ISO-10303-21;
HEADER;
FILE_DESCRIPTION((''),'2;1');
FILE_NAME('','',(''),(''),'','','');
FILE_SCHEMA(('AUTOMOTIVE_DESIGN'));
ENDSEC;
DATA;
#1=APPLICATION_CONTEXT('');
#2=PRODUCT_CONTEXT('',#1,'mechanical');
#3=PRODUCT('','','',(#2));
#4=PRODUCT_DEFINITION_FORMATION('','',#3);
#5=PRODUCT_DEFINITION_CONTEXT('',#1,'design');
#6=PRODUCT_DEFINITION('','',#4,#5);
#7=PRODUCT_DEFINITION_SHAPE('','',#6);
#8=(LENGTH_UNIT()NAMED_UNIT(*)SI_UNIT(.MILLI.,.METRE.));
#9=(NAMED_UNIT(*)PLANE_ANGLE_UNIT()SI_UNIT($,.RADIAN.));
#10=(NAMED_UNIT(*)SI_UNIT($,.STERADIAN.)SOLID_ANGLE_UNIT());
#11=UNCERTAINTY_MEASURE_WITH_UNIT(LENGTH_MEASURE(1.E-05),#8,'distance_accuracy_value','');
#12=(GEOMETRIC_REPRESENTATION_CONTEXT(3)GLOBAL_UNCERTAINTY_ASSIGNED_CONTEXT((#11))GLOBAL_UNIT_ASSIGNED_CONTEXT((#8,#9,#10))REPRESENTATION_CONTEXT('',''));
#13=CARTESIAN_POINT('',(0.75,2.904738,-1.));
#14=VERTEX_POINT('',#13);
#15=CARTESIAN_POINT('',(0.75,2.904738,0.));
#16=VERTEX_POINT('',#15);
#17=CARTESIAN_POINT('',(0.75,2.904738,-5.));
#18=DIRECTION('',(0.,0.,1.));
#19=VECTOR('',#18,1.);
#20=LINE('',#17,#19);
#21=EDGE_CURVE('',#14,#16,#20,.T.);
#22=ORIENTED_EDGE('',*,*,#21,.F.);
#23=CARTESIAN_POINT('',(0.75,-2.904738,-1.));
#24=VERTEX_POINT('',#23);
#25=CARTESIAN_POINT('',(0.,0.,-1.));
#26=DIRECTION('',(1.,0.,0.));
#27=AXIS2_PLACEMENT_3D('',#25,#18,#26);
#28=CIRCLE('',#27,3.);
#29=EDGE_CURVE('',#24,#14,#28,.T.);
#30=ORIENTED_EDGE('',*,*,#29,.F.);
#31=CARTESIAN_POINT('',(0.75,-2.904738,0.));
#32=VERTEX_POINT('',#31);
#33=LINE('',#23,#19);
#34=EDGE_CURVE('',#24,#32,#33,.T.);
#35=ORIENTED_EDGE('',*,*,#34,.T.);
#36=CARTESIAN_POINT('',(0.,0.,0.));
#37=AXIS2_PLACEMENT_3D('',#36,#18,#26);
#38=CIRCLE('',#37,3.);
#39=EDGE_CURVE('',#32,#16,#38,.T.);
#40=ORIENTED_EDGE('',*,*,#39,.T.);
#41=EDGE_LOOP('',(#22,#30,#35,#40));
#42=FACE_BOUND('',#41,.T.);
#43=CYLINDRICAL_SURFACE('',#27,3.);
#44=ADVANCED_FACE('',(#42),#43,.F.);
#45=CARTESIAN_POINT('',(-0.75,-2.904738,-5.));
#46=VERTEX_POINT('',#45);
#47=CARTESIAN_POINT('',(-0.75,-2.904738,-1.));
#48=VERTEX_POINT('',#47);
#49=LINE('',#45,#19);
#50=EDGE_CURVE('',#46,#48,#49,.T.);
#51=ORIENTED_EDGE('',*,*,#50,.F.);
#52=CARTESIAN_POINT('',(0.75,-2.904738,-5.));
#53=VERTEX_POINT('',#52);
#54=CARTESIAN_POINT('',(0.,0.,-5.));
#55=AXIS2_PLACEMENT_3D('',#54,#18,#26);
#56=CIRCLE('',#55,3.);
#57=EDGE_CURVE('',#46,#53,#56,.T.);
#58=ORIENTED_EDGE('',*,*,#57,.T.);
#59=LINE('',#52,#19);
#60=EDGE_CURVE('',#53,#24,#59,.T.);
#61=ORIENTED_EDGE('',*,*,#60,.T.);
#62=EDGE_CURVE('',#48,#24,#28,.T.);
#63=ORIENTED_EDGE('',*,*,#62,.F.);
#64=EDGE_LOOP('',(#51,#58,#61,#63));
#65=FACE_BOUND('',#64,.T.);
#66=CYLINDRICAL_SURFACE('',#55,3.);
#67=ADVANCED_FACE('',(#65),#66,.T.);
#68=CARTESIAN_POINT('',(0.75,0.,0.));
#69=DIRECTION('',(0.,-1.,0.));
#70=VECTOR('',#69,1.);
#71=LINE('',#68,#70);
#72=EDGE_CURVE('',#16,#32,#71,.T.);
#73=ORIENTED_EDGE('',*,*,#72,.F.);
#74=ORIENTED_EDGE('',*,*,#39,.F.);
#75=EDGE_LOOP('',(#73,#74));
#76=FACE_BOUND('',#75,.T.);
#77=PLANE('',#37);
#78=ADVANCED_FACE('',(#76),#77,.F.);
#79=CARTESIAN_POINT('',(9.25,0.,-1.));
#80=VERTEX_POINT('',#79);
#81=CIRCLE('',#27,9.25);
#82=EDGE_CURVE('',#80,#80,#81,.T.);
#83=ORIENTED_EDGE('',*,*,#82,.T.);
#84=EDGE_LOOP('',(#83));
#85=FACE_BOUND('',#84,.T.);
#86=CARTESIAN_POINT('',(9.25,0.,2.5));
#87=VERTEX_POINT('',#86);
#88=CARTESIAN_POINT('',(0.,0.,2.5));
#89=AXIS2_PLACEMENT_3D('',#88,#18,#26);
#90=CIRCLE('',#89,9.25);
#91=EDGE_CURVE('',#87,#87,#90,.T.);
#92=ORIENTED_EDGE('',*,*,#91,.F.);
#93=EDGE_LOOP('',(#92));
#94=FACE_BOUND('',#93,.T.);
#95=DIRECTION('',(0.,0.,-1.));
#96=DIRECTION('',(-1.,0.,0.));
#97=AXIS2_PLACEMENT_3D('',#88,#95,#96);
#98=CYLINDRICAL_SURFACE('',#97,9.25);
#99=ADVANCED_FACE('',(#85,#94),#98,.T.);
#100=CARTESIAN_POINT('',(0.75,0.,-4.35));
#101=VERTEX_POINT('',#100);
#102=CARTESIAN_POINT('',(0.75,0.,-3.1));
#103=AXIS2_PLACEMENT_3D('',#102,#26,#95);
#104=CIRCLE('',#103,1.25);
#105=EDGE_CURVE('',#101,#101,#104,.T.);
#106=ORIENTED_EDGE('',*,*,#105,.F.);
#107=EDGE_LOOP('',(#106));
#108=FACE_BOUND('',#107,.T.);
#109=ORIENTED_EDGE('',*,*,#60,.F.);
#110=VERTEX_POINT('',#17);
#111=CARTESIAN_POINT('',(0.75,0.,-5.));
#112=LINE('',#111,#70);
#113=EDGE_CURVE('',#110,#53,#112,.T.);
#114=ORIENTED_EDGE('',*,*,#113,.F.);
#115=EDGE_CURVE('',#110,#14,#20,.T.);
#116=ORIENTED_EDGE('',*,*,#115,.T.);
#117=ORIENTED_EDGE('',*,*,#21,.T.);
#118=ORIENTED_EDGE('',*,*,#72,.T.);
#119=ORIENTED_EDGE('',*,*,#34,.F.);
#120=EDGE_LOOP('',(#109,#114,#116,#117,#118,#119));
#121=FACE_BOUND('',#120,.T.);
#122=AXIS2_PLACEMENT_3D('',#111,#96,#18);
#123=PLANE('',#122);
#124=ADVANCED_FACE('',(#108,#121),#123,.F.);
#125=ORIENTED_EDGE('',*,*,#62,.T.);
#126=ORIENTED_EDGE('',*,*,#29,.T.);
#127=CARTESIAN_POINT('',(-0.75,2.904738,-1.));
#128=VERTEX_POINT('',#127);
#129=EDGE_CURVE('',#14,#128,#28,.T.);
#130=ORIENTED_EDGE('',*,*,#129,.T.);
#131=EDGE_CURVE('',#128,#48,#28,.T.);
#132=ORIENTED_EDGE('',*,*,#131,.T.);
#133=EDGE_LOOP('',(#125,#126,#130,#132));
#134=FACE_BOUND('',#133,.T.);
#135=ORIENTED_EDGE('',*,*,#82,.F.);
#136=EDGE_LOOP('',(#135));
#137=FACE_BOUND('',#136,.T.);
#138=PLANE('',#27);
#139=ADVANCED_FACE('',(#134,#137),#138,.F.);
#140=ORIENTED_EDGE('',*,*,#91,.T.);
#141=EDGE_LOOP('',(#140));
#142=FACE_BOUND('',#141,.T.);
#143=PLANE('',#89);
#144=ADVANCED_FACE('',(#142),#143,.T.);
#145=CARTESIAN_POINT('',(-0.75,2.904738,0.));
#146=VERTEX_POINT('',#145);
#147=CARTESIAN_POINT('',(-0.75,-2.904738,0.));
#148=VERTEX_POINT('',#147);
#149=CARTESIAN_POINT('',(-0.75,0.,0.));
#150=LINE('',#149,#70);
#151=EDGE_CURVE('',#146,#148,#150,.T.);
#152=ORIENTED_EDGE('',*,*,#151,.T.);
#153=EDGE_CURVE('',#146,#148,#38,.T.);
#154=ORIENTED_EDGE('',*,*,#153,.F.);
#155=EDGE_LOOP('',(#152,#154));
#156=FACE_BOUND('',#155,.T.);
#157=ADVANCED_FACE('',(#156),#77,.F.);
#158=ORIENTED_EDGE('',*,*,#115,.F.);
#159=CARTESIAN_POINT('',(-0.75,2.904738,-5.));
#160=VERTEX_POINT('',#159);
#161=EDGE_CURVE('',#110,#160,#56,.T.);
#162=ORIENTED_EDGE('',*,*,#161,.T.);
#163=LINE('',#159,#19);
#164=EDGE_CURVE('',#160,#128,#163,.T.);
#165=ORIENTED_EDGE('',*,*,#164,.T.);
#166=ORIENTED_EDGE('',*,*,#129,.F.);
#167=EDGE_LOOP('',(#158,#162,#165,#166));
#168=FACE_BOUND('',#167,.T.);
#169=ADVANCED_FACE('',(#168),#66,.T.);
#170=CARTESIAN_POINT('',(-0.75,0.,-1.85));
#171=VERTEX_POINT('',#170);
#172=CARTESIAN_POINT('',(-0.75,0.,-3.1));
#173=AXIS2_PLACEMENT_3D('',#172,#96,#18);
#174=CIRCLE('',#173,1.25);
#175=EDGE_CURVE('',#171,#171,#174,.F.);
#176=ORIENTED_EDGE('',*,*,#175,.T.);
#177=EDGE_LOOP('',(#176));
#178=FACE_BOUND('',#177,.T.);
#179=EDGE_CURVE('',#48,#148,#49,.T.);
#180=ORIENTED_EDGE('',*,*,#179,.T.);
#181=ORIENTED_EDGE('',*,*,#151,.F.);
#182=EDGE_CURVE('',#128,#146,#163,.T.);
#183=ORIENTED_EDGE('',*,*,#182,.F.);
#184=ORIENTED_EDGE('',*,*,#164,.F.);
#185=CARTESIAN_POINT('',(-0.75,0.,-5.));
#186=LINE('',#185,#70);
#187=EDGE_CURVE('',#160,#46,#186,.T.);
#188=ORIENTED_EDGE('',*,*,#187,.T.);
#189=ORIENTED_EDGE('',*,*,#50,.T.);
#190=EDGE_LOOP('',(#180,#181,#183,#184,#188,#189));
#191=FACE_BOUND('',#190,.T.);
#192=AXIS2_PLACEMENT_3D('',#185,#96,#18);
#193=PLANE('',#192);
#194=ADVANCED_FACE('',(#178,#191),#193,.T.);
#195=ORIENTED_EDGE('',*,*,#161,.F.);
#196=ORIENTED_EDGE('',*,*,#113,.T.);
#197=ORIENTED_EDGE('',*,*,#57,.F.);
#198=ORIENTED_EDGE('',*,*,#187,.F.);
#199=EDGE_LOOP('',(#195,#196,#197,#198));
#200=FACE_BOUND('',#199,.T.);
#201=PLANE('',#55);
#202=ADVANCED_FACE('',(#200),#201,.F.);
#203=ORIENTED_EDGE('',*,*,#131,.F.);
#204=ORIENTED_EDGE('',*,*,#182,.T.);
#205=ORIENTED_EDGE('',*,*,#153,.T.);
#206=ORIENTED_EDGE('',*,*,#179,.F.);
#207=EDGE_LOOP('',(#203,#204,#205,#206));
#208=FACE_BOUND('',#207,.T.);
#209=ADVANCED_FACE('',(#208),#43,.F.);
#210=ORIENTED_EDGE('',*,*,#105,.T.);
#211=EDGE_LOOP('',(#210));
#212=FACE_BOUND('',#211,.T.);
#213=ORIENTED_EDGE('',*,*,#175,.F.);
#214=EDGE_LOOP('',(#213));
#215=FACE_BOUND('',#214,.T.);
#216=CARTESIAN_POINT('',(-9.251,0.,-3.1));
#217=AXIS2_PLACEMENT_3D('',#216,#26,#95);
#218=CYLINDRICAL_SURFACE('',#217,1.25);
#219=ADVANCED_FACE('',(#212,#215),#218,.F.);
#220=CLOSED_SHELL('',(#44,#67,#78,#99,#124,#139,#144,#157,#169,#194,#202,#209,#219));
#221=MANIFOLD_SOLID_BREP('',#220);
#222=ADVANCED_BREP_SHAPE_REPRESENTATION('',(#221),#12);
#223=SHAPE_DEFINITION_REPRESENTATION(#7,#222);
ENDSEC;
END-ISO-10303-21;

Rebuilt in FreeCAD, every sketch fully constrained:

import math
import FreeCAD as App
import Part
import Sketcher
from FreeCAD import Vector
Q = App.Units.Quantity

doc = App.newDocument("Part")
body = doc.addObject("PartDesign::Body", "Body")

sketch1 = body.newObject("Sketcher::SketchObject", "Sketch")
sketch1.AttachmentSupport = (doc.getObject("XY_Plane"), [""])
sketch1.MapMode = "FlatFace"
sketch1.addGeometry(Part.Circle(Vector(0, 0, 0), Vector(0, 0, 1), 9), False)
sketch1.addConstraint([
    Sketcher.Constraint("Coincident", 0, 3, -1, 1),
    Sketcher.Constraint("Diameter", 0, Q("18.5 mm")),
])
pad1 = body.newObject("PartDesign::Pad", "Pad")
pad1.Profile = sketch1
pad1.Length = 2.5

sketch2 = body.newObject("Sketcher::SketchObject", "Sketch001")
sketch2.AttachmentSupport = (doc.getObject("XY_Plane"), [""])
sketch2.MapMode = "FlatFace"
sketch2.addGeometry([
    Part.LineSegment(Vector(-0.8, 2.9, 0), Vector(-0.8, -2.9, 0)),
    Part.ArcOfCircle(Part.Circle(Vector(0, 0, 0), Vector(0, 0, 1), 3), math.radians(-104), math.radians(-76)),
    Part.LineSegment(Vector(0.8, -2.9, 0), Vector(0.8, 2.9, 0)),
    Part.ArcOfCircle(Part.Circle(Vector(0, 0, 0), Vector(0, 0, 1), 3), math.radians(76), math.radians(104)),
], False)
sketch2.addConstraint([
    Sketcher.Constraint("Coincident", 0, 2, 1, 1),
    Sketcher.Constraint("Coincident", 1, 2, 2, 1),
    Sketcher.Constraint("Coincident", 2, 2, 3, 1),
    Sketcher.Constraint("Coincident", 3, 2, 0, 1),
    Sketcher.Constraint("Vertical", 0),
    Sketcher.Constraint("Vertical", 2),
    Sketcher.Constraint("Coincident", 1, 3, -1, 1),
    Sketcher.Constraint("Coincident", 3, 3, -1, 1),
    Sketcher.Constraint("Equal", 1, 3),
    Sketcher.Constraint("Horizontal", 0, 2, 1, 2),
    Sketcher.Constraint("Radius", 1, Q("3 mm")),
    Sketcher.Constraint("DistanceX", 0, 2, 1, 2, Q("1.5 mm")),
])
pad2 = body.newObject("PartDesign::Pad", "Pad001")
pad2.Profile = sketch2
pad2.Length = 5
pad2.Reversed = True

sketch3 = body.newObject("Sketcher::SketchObject", "Sketch002")
sketch3.AttachmentSupport = (doc.getObject("XY_Plane"), [""])
sketch3.MapMode = "FlatFace"
sketch3.addGeometry([
    Part.Circle(Vector(0, 0, 0), Vector(0, 0, 1), 9.2),
    Part.Circle(Vector(0, 0, 0), Vector(0, 0, 1), 3),
], False)
sketch3.addConstraint([
    Sketcher.Constraint("Coincident", 0, 3, -1, 1),
    Sketcher.Constraint("Coincident", 1, 3, -1, 1),
    Sketcher.Constraint("Diameter", 1, Q("6 mm")),
    Sketcher.Constraint("Diameter", 0, Q("18.5 mm")),
])
pad3 = body.newObject("PartDesign::Pad", "Pad002")
pad3.Profile = sketch3
pad3.Length = 1
pad3.Reversed = True

sketch4 = body.newObject("Sketcher::SketchObject", "Sketch003")
sketch4.AttachmentSupport = (doc.getObject("YZ_Plane"), [""])
sketch4.MapMode = "FlatFace"
sketch4.AttachmentOffset = App.Placement(Vector(0, 0, 0.75), App.Rotation())
sketch4.addGeometry(Part.Circle(Vector(0, -3.1, 0), Vector(0, 0, 1), 1.2), False)
sketch4.addConstraint([
    Sketcher.Constraint("PointOnObject", 0, 3, -2),
    Sketcher.Constraint("Diameter", 0, Q("2.5 mm")),
    Sketcher.Constraint("DistanceY", 0, 3, -1, 1, Q("3.1 mm")),
])
pocket1 = body.newObject("PartDesign::Pocket", "Pocket")
pocket1.Profile = sketch4
pocket1.Type = "UpToFirst"

doc.recompute()
